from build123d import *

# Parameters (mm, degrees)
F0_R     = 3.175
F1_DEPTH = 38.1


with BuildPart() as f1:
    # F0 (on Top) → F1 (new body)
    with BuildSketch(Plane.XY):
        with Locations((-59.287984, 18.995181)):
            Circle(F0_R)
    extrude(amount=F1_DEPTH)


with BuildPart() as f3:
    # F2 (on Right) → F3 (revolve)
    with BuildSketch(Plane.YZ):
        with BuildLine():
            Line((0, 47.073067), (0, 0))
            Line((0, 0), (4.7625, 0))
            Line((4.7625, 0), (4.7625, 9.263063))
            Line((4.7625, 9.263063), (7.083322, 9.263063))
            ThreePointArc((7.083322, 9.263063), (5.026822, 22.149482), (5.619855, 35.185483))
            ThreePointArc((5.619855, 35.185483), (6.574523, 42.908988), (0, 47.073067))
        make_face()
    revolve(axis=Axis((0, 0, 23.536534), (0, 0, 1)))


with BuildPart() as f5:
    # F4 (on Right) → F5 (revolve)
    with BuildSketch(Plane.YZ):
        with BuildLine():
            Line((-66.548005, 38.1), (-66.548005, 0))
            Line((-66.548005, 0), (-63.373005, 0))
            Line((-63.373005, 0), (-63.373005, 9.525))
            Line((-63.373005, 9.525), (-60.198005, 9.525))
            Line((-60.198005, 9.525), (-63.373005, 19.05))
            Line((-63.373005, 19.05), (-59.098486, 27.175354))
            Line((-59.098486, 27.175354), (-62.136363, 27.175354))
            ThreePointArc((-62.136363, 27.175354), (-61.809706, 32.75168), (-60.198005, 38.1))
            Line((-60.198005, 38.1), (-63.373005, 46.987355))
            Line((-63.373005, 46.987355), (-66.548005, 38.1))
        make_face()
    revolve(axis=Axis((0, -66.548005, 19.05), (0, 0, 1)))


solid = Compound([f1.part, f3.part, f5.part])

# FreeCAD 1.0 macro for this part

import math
import FreeCAD as App
import Part
import Sketcher

V = App.Vector
Q = App.Units.Quantity

doc = App.newDocument("Part")
params = doc.addObject("Spreadsheet::Sheet", "Params")
for row, (alias, value) in enumerate([
    ("sketch1_diameter", "0.25 in"),
    ("pad1_length", "1.5 in"),
    ("sketch2_width", "0.1875 in"),
    ("revolution_angle", "360 deg"),
    ("sketch3_height", "1.5 in"),
    ("sketch3_width", "0.125 in"),
    ("sketch3_height2", "0.375 in"),
    ("revolution2_angle", "360 deg"),
], start=1):
    params.set(f"A{row}", alias)
    params.set(f"B{row}", "=" + value)
    params.setAlias(f"B{row}", alias)

body = doc.addObject("PartDesign::Body", "Body")

sketch1 = body.newObject("Sketcher::SketchObject", "Sketch")
sketch1.AttachmentSupport = (doc.getObject("XY_Plane"), [""])
sketch1.MapMode = "FlatFace"
sketch1.addGeometry(Part.Circle(V(-59.3, 19, 0), V(0, 0, 1), 3.2), False)
sketch1.addConstraint([
    Sketcher.Constraint("Diameter", 0, Q("0.25 in")),
    Sketcher.Constraint("DistanceY", -1, 1, 0, 3, 18.995181),
    Sketcher.Constraint("DistanceX", 0, 3, -1, 1, 59.287984),
])
sketch1.setExpression("Constraints[0]", "Params.sketch1_diameter")
pad1 = body.newObject("PartDesign::Pad", "Pad")
pad1.Profile = sketch1
pad1.setExpression("Length", "Params.pad1_length")
body2 = doc.addObject("PartDesign::Body", "Body001")

sketch2 = body2.newObject("Sketcher::SketchObject", "Sketch001")
sketch2.AttachmentSupport = (doc.getObject("YZ_Plane001"), [""])
sketch2.MapMode = "FlatFace"
sketch2.addGeometry([
    Part.LineSegment(V(0, 47.1, 0), V(0, 0, 0)),
    Part.LineSegment(V(0, 0, 0), V(4.8, 0, 0)),
    Part.LineSegment(V(4.8, 0, 0), V(4.8, 9.3, 0)),
    Part.LineSegment(V(4.8, 9.3, 0), V(7.1, 9.3, 0)),
    Part.ArcOfCircle(Part.Circle(V(69.1, 25.8, 0), V(0, 0, 1), 64.2), math.radians(172), math.radians(195)),
    Part.ArcOfCircle(Part.Circle(V(0, 39.8, 0), V(0, 0, 1), 7.3), math.radians(-39), math.radians(90)),
], False)
sketch2.addConstraint([
    Sketcher.Constraint("Coincident", 0, 2, 1, 1),
    Sketcher.Constraint("Coincident", 1, 2, 2, 1),
    Sketcher.Constraint("Coincident", 2, 2, 3, 1),
    Sketcher.Constraint("Coincident", 3, 2, 4, 2),
    Sketcher.Constraint("Coincident", 4, 1, 5, 1),
    Sketcher.Constraint("Coincident", 5, 2, 0, 1),
    Sketcher.Constraint("Vertical", 0),
    Sketcher.Constraint("Horizontal", 1),
    Sketcher.Constraint("Vertical", 2),
    Sketcher.Constraint("Horizontal", 3),
    Sketcher.Constraint("Coincident", 0, 2, -1, 1),
    Sketcher.Constraint("PointOnObject", 5, 3, -2),
    Sketcher.Constraint("DistanceX", 1, 1, 1, 2, Q("0.1875 in")),
    Sketcher.Constraint("Radius", 4, 64.169145),
    Sketcher.Constraint("Radius", 5, 7.272185),
    Sketcher.Constraint("DistanceX", 3, 1, 3, 2, 2.320822),
    Sketcher.Constraint("DistanceY", 4, 1, 5, 3, 4.615399),
    Sketcher.Constraint("DistanceY", 0, 2, 0, 1, 47.073067),
    Sketcher.Constraint("DistanceY", 2, 1, 2, 2, 9.263063),
])
sketch2.setExpression("Constraints[12]", "Params.sketch2_width")
revolution = body2.newObject("PartDesign::Revolution", "Revolution")
revolution.Profile = sketch2
revolution.ReferenceAxis = (sketch2, ["V_Axis"])
revolution.setExpression("Angle", "Params.revolution_angle")
body3 = doc.addObject("PartDesign::Body", "Body002")

sketch3 = body3.newObject("Sketcher::SketchObject", "Sketch002")
sketch3.AttachmentSupport = (doc.getObject("YZ_Plane002"), [""])
sketch3.MapMode = "FlatFace"
sketch3.addGeometry([
    Part.LineSegment(V(-66.5, 38.1, 0), V(-66.5, 0, 0)),
    Part.LineSegment(V(-66.5, 0, 0), V(-63.4, 0, 0)),
    Part.LineSegment(V(-63.4, 0, 0), V(-63.4, 9.5, 0)),
    Part.LineSegment(V(-63.4, 9.5, 0), V(-60.2, 9.5, 0)),
    Part.LineSegment(V(-60.2, 9.5, 0), V(-63.4, 19.1, 0)),
    Part.LineSegment(V(-63.4, 19.1, 0), V(-59.1, 27.2, 0)),
    Part.LineSegment(V(-59.1, 27.2, 0), V(-62.1, 27.2, 0)),
    Part.ArcOfCircle(Part.Circle(V(-38.3, 28.6, 0), V(0, 0, 1), 23.9), math.radians(157), math.radians(183)),
    Part.LineSegment(V(-60.2, 38.1, 0), V(-63.4, 47, 0)),
    Part.LineSegment(V(-63.4, 47, 0), V(-66.5, 38.1, 0)),
], False)
sketch3.addGeometry(Part.LineSegment(V(-66.5, 0, 0), V(-66.5, 47, 0)), True)
sketch3.addConstraint([
    Sketcher.Constraint("Coincident", 0, 2, 1, 1),
    Sketcher.Constraint("Coincident", 1, 2, 2, 1),
    Sketcher.Constraint("Coincident", 2, 2, 3, 1),
    Sketcher.Constraint("Coincident", 3, 2, 4, 1),
    Sketcher.Constraint("Coincident", 4, 2, 5, 1),
    Sketcher.Constraint("Coincident", 5, 2, 6, 1),
    Sketcher.Constraint("Coincident", 6, 2, 7, 2),
    Sketcher.Constraint("Coincident", 7, 1, 8, 1),
    Sketcher.Constraint("Coincident", 8, 2, 9, 1),
    Sketcher.Constraint("Coincident", 9, 2, 0, 1),
    Sketcher.Constraint("Vertical", 0),
    Sketcher.Constraint("Horizontal", 1),
    Sketcher.Constraint("Vertical", 2),
    Sketcher.Constraint("Horizontal", 3),
    Sketcher.Constraint("Horizontal", 6),
    Sketcher.Constraint("Vertical", 10),
    Sketcher.Constraint("Coincident", 10, 1, 0, 2),
    Sketcher.Constraint("PointOnObject", 0, 2, -1),
    Sketcher.Constraint("Horizontal", 7, 1, 9, 2),
    Sketcher.Constraint("Horizontal", 8, 2, 10, 2),
    Sketcher.Constraint("Vertical", 2, 2, 4, 2),
    Sketcher.Constraint("Vertical", 3, 2, 7, 1),
    Sketcher.Constraint("Vertical", 4, 2, 8, 2),
    Sketcher.Constraint("Equal", 1, 3),
    Sketcher.Constraint("DistanceY", 0, 2, 0, 1, Q("1.5 in")),
    Sketcher.Constraint("DistanceX", 1, 1, 1, 2, Q("0.125 in")),
    Sketcher.Constraint("DistanceY", 2, 1, 2, 2, Q("0.375 in")),
    Sketcher.Constraint("DistanceX", 0, 2, -1, 1, Q("2.6200002 in")),
    Sketcher.Constraint("DistanceY", -1, 1, 4, 2, Q("0.75 in")),
    Sketcher.Constraint("DistanceY", 2, 2, 7, 3, Q("0.75 in")),
    Sketcher.Constraint("DistanceY", 6, 2, 8, 2, Q("0.78 in")),
    Sketcher.Constraint("Radius", 7, 23.90756),
    Sketcher.Constraint("DistanceX", 6, 2, 6, 1, 3.037877),
    Sketcher.Constraint("DistanceY", 10, 1, 10, 2, 46.987355),
])
sketch3.setExpression("Constraints[24]", "Params.sketch3_height")
sketch3.setExpression("Constraints[25]", "Params.sketch3_width")
sketch3.setExpression("Constraints[26]", "Params.sketch3_height2")
revolution2 = body3.newObject("PartDesign::Revolution", "Revolution001")
revolution2.Profile = sketch3
revolution2.ReferenceAxis = (sketch3, ["Axis0"])
revolution2.setExpression("Angle", "Params.revolution2_angle")

doc.recompute()
